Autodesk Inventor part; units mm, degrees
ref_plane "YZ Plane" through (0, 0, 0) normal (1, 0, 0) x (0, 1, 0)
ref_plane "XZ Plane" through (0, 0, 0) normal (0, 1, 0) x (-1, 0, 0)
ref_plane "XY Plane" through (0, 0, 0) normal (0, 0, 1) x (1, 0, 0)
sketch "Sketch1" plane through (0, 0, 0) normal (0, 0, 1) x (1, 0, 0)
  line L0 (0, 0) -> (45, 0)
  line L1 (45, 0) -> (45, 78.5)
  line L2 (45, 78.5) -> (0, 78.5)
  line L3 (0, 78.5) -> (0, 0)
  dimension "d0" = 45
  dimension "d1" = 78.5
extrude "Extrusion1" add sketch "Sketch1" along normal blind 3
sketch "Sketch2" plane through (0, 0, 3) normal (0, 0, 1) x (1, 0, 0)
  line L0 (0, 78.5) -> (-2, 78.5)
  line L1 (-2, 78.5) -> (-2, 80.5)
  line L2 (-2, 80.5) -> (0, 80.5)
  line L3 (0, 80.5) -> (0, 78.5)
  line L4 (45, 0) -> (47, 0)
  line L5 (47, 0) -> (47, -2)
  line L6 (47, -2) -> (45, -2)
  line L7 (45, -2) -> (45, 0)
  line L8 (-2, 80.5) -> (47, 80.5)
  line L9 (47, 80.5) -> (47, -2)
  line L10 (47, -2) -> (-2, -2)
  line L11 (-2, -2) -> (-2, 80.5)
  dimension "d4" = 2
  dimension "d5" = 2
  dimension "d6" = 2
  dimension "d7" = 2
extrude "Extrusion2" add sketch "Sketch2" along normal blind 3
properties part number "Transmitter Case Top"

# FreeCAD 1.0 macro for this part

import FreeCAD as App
import Part
import Sketcher
Q = App.Units.Quantity

doc = App.newDocument("Part")
body = doc.addObject("PartDesign::Body", "Body")

sketch1 = body.newObject("Sketcher::SketchObject", "Sketch")
sketch1.AttachmentSupport = (doc.getObject("XY_Plane"), [""])
sketch1.MapMode = "FlatFace"
sketch1.addGeometry([
    Part.LineSegment(App.Vector(0, 78.5, 0), App.Vector(0, 0, 0)),
    Part.LineSegment(App.Vector(0, 0, 0), App.Vector(45, 0, 0)),
    Part.LineSegment(App.Vector(45, 0, 0), App.Vector(45, 78.5, 0)),
    Part.LineSegment(App.Vector(45, 78.5, 0), App.Vector(0, 78.5, 0)),
], False)
sketch1.addConstraint([
    Sketcher.Constraint("Coincident", 0, 2, 1, 1),
    Sketcher.Constraint("Coincident", 1, 2, 2, 1),
    Sketcher.Constraint("Coincident", 2, 2, 3, 1),
    Sketcher.Constraint("Coincident", 3, 2, 0, 1),
    Sketcher.Constraint("Vertical", 0),
    Sketcher.Constraint("Horizontal", 1),
    Sketcher.Constraint("Vertical", 2),
    Sketcher.Constraint("Horizontal", 3),
    Sketcher.Constraint("Coincident", 0, 2, -1, 1),
    Sketcher.Constraint("DistanceX", 1, 1, 1, 2, Q("45 mm")),
    Sketcher.Constraint("DistanceY", 0, 2, 0, 1, Q("78.5 mm")),
])
pad1 = body.newObject("PartDesign::Pad", "Pad")
pad1.Profile = sketch1
pad1.Length = 3

sketch2 = body.newObject("Sketcher::SketchObject", "Sketch001")
sketch2.AttachmentSupport = (doc.getObject("XY_Plane"), [""])
sketch2.MapMode = "FlatFace"
sketch2.AttachmentOffset = App.Placement(App.Vector(0, 0, 3), App.Rotation())
sketch2.addGeometry([
    Part.LineSegment(App.Vector(47, 80.5, 0), App.Vector(-2, 80.5, 0)),
    Part.LineSegment(App.Vector(-2, 80.5, 0), App.Vector(-2, -2, 0)),
    Part.LineSegment(App.Vector(-2, -2, 0), App.Vector(47, -2, 0)),
    Part.LineSegment(App.Vector(47, -2, 0), App.Vector(47, 80.5, 0)),
], False)
sketch2.addConstraint([
    Sketcher.Constraint("Coincident", 0, 2, 1, 1),
    Sketcher.Constraint("Coincident", 1, 2, 2, 1),
    Sketcher.Constraint("Coincident", 2, 2, 3, 1),
    Sketcher.Constraint("Coincident", 3, 2, 0, 1),
    Sketcher.Constraint("Horizontal", 0),
    Sketcher.Constraint("Vertical", 1),
    Sketcher.Constraint("Horizontal", 2),
    Sketcher.Constraint("Vertical", 3),
    Sketcher.Constraint("DistanceX", 0, 2, -1, 1, Q("2 mm")),
    Sketcher.Constraint("DistanceY", 1, 2, -1, 1, Q("2 mm")),
    Sketcher.Constraint("DistanceX", 0, 2, 0, 1, Q("49 mm")),
    Sketcher.Constraint("DistanceY", 1, 2, 1, 1, Q("82.5 mm")),
])
pad2 = body.newObject("PartDesign::Pad", "Pad001")
pad2.Profile = sketch2
pad2.Length = 3

doc.recompute()
